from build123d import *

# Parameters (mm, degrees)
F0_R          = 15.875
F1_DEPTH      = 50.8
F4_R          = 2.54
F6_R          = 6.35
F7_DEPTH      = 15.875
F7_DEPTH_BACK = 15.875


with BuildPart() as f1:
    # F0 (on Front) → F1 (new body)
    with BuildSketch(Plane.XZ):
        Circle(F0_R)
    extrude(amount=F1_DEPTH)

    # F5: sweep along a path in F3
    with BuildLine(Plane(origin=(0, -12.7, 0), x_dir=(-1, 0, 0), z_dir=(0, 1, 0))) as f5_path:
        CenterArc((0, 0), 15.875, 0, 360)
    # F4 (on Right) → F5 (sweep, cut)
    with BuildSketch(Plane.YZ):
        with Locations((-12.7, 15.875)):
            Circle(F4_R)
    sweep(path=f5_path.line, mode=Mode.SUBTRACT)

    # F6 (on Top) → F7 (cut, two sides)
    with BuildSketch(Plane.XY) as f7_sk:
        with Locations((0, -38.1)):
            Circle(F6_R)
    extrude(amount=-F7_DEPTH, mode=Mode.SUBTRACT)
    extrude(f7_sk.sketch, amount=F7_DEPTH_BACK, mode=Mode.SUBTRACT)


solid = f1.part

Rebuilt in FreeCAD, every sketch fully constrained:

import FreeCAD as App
import Part
import Sketcher
Q = App.Units.Quantity

doc = App.newDocument("Part")
body = doc.addObject("PartDesign::Body", "Body")

# Sketch on XZ plane
sketch1 = body.newObject("Sketcher::SketchObject", "Sketch")
sketch1.AttachmentSupport = (doc.getObject("XZ_Plane"), [""])
sketch1.MapMode = "FlatFace"
sketch1.addGeometry(Part.Circle(App.Vector(0, 0, 0), App.Vector(0, 0, 1), 15.875), False)
sketch1.addConstraint([
    Sketcher.Constraint("Coincident", 0, 3, -1, 1),
    Sketcher.Constraint("Diameter", 0, Q("1.25 in")),
])
pad1 = body.newObject("PartDesign::Pad", "Pad")
pad1.Profile = sketch1
pad1.Length = Q("2 in")

# Sketch on YZ plane
sketch2 = body.newObject("Sketcher::SketchObject", "Sketch001")
sketch2.AttachmentSupport = (doc.getObject("YZ_Plane"), [""])
sketch2.MapMode = "FlatFace"
sketch2.addGeometry(Part.Circle(App.Vector(-12.7, 15.875, 0), App.Vector(0, 0, 1), 2.54), False)
sketch2.addConstraint([
    Sketcher.Constraint("Diameter", 0, Q("0.2 in")),
    Sketcher.Constraint("DistanceX", 0, 3, -1, 1, Q("0.5 in")),
    Sketcher.Constraint("DistanceY", -1, 1, 0, 3, Q("0.625 in")),
])

# Sketch on XZ plane
sketch3 = body.newObject("Sketcher::SketchObject", "Sketch002")
sketch3.AttachmentSupport = (doc.getObject("XZ_Plane"), [""])
sketch3.MapMode = "FlatFace"
sketch3.AttachmentOffset = App.Placement(App.Vector(0, 0, 0.5 * 25.4), App.Rotation())
sketch3.addGeometry(Part.Circle(App.Vector(0, 0, 0), App.Vector(0, 0, 1), 15.875), False)
sketch3.addConstraint([
    Sketcher.Constraint("Coincident", 0, 3, -1, 1),
    Sketcher.Constraint("Diameter", 0, Q("1.25 in")),
])
doc.recompute()

subtractivepipe = body.newObject("PartDesign::SubtractivePipe", "SubtractivePipe")
subtractivepipe.Profile = sketch2
subtractivepipe.Spine = (sketch3, ["Edge1"])

# Sketch on XY plane
sketch4 = body.newObject("Sketcher::SketchObject", "Sketch003")
sketch4.AttachmentSupport = (doc.getObject("XY_Plane"), [""])
sketch4.MapMode = "FlatFace"
sketch4.addGeometry(Part.Circle(App.Vector(0, -38.1, 0), App.Vector(0, 0, 1), 6.35), False)
sketch4.addConstraint([
    Sketcher.Constraint("PointOnObject", 0, 3, -2),
    Sketcher.Constraint("Diameter", 0, Q("0.5 in")),
    Sketcher.Constraint("DistanceY", 0, 3, -1, 1, Q("1.5 in")),
])
pocket1 = body.newObject("PartDesign::Pocket", "Pocket")
pocket1.Profile = sketch4
pocket1.Type = "ThroughAll"
pocket1.Midplane = True

doc.recompute()
